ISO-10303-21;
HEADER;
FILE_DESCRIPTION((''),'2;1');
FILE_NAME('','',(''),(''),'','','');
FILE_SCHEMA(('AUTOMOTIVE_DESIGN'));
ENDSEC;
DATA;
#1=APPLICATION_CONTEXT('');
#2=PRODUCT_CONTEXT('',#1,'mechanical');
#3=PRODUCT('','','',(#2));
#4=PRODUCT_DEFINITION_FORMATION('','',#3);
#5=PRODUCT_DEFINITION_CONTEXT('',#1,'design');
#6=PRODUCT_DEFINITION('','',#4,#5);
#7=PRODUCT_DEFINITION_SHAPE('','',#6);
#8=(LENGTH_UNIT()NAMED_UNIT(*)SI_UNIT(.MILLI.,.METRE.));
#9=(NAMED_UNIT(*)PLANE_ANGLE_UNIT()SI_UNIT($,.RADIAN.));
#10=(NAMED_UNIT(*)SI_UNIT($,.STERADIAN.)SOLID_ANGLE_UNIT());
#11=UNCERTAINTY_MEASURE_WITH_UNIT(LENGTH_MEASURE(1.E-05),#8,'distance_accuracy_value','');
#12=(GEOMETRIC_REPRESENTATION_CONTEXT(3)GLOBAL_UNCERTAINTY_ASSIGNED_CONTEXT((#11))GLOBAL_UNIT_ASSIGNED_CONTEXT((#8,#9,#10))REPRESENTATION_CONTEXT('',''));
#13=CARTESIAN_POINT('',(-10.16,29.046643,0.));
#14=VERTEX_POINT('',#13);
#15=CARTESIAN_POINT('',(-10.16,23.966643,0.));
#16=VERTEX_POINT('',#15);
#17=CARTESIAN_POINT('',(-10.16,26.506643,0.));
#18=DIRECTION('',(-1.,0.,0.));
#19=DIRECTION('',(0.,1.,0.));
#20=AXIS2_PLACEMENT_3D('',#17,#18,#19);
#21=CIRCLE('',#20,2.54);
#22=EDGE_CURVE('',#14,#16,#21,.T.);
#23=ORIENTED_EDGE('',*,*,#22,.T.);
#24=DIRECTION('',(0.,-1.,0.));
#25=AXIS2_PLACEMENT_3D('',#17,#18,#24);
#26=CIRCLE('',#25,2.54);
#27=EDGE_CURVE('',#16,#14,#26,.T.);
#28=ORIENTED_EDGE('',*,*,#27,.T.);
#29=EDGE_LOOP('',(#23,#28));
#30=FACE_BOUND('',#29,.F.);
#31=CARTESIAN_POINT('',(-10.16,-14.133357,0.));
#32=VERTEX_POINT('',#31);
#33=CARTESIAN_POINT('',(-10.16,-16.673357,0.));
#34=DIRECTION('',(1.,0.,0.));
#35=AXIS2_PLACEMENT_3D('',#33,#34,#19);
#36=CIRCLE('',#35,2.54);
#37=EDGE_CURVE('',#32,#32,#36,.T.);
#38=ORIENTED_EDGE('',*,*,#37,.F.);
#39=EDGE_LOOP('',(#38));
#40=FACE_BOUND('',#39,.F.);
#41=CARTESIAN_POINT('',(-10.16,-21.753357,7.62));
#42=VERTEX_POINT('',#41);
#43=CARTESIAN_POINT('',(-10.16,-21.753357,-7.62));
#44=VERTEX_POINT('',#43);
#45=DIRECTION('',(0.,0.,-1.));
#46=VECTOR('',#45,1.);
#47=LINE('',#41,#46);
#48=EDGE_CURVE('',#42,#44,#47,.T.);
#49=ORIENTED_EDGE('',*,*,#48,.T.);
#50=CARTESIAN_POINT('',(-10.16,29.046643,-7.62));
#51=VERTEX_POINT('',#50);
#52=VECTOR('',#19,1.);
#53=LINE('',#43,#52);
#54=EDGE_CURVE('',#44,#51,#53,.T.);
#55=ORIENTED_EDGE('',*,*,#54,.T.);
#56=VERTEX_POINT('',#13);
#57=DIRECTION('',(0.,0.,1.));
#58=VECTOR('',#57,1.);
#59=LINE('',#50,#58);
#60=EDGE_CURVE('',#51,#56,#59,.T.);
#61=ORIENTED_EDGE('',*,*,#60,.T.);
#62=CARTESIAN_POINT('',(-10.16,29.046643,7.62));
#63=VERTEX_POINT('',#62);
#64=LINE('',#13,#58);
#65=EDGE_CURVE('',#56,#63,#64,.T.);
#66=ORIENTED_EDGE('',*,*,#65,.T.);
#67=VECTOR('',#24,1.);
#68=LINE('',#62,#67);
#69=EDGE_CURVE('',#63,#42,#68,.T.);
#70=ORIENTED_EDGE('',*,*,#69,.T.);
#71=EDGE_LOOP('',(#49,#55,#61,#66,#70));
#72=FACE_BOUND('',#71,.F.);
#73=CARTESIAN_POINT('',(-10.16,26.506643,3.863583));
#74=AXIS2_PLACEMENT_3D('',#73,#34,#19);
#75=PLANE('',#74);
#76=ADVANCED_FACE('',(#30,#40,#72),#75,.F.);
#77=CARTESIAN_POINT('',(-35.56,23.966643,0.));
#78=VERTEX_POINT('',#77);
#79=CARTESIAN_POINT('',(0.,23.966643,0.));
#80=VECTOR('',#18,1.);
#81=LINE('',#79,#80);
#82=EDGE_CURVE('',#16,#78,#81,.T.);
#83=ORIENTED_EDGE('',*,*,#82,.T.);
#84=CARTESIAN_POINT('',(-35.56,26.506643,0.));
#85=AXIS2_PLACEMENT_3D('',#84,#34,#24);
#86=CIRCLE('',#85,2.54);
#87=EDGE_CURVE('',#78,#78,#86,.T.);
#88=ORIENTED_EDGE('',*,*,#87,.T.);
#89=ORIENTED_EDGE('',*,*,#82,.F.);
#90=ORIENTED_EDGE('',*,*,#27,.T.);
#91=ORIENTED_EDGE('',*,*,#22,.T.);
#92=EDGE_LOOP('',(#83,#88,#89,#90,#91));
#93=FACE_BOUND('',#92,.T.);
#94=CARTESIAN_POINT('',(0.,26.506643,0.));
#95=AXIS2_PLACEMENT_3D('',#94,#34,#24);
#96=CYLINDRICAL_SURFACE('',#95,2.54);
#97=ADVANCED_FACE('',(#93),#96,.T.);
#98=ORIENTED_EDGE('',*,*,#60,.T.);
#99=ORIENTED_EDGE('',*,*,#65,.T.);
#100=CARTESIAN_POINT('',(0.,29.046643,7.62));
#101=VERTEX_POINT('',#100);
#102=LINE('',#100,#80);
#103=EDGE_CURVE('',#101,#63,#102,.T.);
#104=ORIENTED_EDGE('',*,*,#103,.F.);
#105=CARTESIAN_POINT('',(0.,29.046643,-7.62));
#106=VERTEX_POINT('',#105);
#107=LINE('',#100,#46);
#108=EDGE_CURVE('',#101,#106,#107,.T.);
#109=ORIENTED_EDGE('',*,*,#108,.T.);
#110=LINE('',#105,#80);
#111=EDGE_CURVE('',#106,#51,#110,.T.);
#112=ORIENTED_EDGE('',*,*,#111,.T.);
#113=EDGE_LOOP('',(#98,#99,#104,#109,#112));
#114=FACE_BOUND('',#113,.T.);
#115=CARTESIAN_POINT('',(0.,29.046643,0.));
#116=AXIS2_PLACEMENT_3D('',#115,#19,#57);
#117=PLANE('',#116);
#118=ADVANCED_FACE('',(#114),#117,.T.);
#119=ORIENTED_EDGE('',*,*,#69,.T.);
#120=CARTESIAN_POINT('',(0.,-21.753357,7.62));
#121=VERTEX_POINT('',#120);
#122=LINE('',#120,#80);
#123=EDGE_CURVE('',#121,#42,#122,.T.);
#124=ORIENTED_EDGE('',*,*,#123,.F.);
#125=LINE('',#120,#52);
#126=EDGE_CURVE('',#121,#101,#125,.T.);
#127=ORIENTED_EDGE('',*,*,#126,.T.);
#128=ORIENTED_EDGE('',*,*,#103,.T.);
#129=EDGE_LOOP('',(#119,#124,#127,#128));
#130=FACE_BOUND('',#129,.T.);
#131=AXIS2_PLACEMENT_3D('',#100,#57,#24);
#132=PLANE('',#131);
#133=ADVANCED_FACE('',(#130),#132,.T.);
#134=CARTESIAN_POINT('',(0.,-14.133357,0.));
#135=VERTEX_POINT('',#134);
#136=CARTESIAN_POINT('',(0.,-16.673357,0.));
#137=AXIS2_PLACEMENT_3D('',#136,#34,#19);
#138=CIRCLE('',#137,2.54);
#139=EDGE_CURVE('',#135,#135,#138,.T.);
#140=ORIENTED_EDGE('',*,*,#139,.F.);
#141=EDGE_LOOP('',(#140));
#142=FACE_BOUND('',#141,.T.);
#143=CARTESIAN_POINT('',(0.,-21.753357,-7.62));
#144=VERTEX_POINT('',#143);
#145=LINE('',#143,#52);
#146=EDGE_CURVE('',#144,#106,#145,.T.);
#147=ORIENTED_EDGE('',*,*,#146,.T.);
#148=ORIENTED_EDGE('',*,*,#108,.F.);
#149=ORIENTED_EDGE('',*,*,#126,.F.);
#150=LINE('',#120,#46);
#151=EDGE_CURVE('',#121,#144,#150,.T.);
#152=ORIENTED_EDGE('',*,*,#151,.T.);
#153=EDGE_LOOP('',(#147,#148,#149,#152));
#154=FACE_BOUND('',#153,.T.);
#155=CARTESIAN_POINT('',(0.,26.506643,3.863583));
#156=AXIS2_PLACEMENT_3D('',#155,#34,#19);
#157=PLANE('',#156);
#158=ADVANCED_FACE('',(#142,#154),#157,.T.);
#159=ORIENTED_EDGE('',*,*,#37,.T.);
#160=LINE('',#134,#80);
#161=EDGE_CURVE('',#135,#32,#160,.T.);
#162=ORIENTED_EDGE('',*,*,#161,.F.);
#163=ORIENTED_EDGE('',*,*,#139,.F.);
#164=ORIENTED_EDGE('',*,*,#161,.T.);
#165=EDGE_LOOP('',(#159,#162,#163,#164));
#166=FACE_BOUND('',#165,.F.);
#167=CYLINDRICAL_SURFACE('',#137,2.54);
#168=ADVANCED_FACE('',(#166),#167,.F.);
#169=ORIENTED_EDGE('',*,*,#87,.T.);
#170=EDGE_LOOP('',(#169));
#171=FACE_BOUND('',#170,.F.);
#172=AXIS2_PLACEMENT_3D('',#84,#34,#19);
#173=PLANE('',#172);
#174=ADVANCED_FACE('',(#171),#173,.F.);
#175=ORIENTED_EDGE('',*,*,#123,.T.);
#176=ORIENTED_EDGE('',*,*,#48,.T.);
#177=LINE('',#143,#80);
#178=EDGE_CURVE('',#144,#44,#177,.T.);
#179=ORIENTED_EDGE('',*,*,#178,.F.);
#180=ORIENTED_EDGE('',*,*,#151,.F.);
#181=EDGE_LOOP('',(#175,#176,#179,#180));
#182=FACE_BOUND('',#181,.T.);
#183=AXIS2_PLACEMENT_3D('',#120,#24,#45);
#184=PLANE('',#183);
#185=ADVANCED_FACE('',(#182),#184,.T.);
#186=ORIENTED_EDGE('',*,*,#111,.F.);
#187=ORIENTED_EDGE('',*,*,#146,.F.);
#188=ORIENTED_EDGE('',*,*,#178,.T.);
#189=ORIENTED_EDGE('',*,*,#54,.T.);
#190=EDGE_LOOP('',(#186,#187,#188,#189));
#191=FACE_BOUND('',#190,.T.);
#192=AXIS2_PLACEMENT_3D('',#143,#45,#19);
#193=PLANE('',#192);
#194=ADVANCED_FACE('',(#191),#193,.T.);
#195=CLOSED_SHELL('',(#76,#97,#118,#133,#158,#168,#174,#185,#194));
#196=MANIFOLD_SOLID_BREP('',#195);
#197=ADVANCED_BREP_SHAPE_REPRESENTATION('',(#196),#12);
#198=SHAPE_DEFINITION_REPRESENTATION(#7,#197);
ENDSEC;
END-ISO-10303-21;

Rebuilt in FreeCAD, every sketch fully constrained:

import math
import FreeCAD as App
import Part
import Sketcher
from FreeCAD import Vector
Q = App.Units.Quantity

doc = App.newDocument("Part")
body = doc.addObject("PartDesign::Body", "Body")

sketch1 = body.newObject("Sketcher::SketchObject", "Sketch")
sketch1.AttachmentSupport = (doc.getObject("YZ_Plane"), [""])
sketch1.MapMode = "FlatFace"
sketch1.addGeometry(Part.Circle(Vector(26.5, 0, 0), Vector(0, 0, 1), 2.5), False)
sketch1.addConstraint([
    Sketcher.Constraint("PointOnObject", 0, 3, -1),
    Sketcher.Constraint("Diameter", 0, Q("0.2 in")),
    Sketcher.Constraint("DistanceX", -1, 1, 0, 3, 26.506643),
])
pad1 = body.newObject("PartDesign::Pad", "Pad")
pad1.Profile = sketch1
pad1.Length = Q("1.4 in")
pad1.Reversed = True

sketch2 = body.newObject("Sketcher::SketchObject", "Sketch001")
sketch2.AttachmentSupport = (doc.getObject("YZ_Plane"), [""])
sketch2.MapMode = "FlatFace"
sketch2.addGeometry([
    Part.LineSegment(Vector(24, 7.6, 0), Vector(-21.8, 7.6, 0)),
    Part.LineSegment(Vector(-21.8, 7.6, 0), Vector(-21.8, -7.6, 0)),
    Part.LineSegment(Vector(-21.8, -7.6, 0), Vector(29, -7.6, 0)),
    Part.LineSegment(Vector(29, -7.6, 0), Vector(29, 0, 0)),
    Part.ArcOfCircle(Part.Circle(Vector(26.5, 0, 0), Vector(0, 0, 1), 2.5), math.radians(180), math.radians(360)),
    Part.LineSegment(Vector(24, 0, 0), Vector(24, 7.6, 0)),
    Part.Circle(Vector(-16.7, 0, 0), Vector(0, 0, 1), 2.5),
], False)
sketch2.addConstraint([
    Sketcher.Constraint("Coincident", 0, 2, 1, 1),
    Sketcher.Constraint("Coincident", 1, 2, 2, 1),
    Sketcher.Constraint("Coincident", 2, 2, 3, 1),
    Sketcher.Constraint("Tangent", 3, 2, 4, 2),
    Sketcher.Constraint("Tangent", 4, 1, 5, 1),
    Sketcher.Constraint("Coincident", 5, 2, 0, 1),
    Sketcher.Constraint("Horizontal", 0),
    Sketcher.Constraint("Vertical", 1),
    Sketcher.Constraint("Horizontal", 2),
    Sketcher.Constraint("Vertical", 3),
    Sketcher.Constraint("Vertical", 5),
    Sketcher.Constraint("Equal", 4, 6),
    Sketcher.Constraint("PointOnObject", 4, 3, -1),
    Sketcher.Constraint("PointOnObject", 6, 3, -1),
    Sketcher.Constraint("Equal", 3, 5),
    Sketcher.Constraint("Diameter", 6, Q("0.2 in")),
    Sketcher.Constraint("DistanceX", 2, 1, 2, 2, Q("2 in")),
    Sketcher.Constraint("DistanceY", 1, 2, 1, 1, Q("0.6 in")),
    Sketcher.Constraint("DistanceX", 6, 3, 4, 3, Q("1.7 in")),
    Sketcher.Constraint("DistanceX", -1, 1, 4, 3, 26.506643),
])
pad2 = body.newObject("PartDesign::Pad", "Pad001")
pad2.Profile = sketch2
pad2.Length = Q("0.4 in")
pad2.Reversed = True

sketch3 = body.newObject("Sketcher::SketchObject", "Sketch002")
sketch3.AttachmentSupport = (doc.getObject("YZ_Plane"), [""])
sketch3.MapMode = "FlatFace"
sketch3.addGeometry([
    Part.LineSegment(Vector(29, 7.6, 0), Vector(24, 7.6, 0)),
    Part.LineSegment(Vector(24, 7.6, 0), Vector(24, 0, 0)),
    Part.ArcOfCircle(Part.Circle(Vector(26.5, 0, 0), Vector(0, 0, 1), 2.5), math.radians(0), math.radians(180)),
    Part.LineSegment(Vector(29, 0, 0), Vector(29, 7.6, 0)),
], False)
sketch3.addConstraint([
    Sketcher.Constraint("Coincident", 0, 2, 1, 1),
    Sketcher.Constraint("Tangent", 1, 2, 2, 2),
    Sketcher.Constraint("Tangent", 2, 1, 3, 1),
    Sketcher.Constraint("Coincident", 3, 2, 0, 1),
    Sketcher.Constraint("Horizontal", 0),
    Sketcher.Constraint("Vertical", 1),
    Sketcher.Constraint("Vertical", 3),
    Sketcher.Constraint("PointOnObject", 2, 3, -1),
    Sketcher.Constraint("Radius", 2, Q("0.1 in")),
    Sketcher.Constraint("DistanceY", 1, 2, 1, 1, Q("0.3 in")),
    Sketcher.Constraint("DistanceX", -1, 1, 2, 3, 26.506643),
])
pad3 = body.newObject("PartDesign::Pad", "Pad002")
pad3.Profile = sketch3
pad3.Length = Q("0.4 in")
pad3.Reversed = True

doc.recompute()
